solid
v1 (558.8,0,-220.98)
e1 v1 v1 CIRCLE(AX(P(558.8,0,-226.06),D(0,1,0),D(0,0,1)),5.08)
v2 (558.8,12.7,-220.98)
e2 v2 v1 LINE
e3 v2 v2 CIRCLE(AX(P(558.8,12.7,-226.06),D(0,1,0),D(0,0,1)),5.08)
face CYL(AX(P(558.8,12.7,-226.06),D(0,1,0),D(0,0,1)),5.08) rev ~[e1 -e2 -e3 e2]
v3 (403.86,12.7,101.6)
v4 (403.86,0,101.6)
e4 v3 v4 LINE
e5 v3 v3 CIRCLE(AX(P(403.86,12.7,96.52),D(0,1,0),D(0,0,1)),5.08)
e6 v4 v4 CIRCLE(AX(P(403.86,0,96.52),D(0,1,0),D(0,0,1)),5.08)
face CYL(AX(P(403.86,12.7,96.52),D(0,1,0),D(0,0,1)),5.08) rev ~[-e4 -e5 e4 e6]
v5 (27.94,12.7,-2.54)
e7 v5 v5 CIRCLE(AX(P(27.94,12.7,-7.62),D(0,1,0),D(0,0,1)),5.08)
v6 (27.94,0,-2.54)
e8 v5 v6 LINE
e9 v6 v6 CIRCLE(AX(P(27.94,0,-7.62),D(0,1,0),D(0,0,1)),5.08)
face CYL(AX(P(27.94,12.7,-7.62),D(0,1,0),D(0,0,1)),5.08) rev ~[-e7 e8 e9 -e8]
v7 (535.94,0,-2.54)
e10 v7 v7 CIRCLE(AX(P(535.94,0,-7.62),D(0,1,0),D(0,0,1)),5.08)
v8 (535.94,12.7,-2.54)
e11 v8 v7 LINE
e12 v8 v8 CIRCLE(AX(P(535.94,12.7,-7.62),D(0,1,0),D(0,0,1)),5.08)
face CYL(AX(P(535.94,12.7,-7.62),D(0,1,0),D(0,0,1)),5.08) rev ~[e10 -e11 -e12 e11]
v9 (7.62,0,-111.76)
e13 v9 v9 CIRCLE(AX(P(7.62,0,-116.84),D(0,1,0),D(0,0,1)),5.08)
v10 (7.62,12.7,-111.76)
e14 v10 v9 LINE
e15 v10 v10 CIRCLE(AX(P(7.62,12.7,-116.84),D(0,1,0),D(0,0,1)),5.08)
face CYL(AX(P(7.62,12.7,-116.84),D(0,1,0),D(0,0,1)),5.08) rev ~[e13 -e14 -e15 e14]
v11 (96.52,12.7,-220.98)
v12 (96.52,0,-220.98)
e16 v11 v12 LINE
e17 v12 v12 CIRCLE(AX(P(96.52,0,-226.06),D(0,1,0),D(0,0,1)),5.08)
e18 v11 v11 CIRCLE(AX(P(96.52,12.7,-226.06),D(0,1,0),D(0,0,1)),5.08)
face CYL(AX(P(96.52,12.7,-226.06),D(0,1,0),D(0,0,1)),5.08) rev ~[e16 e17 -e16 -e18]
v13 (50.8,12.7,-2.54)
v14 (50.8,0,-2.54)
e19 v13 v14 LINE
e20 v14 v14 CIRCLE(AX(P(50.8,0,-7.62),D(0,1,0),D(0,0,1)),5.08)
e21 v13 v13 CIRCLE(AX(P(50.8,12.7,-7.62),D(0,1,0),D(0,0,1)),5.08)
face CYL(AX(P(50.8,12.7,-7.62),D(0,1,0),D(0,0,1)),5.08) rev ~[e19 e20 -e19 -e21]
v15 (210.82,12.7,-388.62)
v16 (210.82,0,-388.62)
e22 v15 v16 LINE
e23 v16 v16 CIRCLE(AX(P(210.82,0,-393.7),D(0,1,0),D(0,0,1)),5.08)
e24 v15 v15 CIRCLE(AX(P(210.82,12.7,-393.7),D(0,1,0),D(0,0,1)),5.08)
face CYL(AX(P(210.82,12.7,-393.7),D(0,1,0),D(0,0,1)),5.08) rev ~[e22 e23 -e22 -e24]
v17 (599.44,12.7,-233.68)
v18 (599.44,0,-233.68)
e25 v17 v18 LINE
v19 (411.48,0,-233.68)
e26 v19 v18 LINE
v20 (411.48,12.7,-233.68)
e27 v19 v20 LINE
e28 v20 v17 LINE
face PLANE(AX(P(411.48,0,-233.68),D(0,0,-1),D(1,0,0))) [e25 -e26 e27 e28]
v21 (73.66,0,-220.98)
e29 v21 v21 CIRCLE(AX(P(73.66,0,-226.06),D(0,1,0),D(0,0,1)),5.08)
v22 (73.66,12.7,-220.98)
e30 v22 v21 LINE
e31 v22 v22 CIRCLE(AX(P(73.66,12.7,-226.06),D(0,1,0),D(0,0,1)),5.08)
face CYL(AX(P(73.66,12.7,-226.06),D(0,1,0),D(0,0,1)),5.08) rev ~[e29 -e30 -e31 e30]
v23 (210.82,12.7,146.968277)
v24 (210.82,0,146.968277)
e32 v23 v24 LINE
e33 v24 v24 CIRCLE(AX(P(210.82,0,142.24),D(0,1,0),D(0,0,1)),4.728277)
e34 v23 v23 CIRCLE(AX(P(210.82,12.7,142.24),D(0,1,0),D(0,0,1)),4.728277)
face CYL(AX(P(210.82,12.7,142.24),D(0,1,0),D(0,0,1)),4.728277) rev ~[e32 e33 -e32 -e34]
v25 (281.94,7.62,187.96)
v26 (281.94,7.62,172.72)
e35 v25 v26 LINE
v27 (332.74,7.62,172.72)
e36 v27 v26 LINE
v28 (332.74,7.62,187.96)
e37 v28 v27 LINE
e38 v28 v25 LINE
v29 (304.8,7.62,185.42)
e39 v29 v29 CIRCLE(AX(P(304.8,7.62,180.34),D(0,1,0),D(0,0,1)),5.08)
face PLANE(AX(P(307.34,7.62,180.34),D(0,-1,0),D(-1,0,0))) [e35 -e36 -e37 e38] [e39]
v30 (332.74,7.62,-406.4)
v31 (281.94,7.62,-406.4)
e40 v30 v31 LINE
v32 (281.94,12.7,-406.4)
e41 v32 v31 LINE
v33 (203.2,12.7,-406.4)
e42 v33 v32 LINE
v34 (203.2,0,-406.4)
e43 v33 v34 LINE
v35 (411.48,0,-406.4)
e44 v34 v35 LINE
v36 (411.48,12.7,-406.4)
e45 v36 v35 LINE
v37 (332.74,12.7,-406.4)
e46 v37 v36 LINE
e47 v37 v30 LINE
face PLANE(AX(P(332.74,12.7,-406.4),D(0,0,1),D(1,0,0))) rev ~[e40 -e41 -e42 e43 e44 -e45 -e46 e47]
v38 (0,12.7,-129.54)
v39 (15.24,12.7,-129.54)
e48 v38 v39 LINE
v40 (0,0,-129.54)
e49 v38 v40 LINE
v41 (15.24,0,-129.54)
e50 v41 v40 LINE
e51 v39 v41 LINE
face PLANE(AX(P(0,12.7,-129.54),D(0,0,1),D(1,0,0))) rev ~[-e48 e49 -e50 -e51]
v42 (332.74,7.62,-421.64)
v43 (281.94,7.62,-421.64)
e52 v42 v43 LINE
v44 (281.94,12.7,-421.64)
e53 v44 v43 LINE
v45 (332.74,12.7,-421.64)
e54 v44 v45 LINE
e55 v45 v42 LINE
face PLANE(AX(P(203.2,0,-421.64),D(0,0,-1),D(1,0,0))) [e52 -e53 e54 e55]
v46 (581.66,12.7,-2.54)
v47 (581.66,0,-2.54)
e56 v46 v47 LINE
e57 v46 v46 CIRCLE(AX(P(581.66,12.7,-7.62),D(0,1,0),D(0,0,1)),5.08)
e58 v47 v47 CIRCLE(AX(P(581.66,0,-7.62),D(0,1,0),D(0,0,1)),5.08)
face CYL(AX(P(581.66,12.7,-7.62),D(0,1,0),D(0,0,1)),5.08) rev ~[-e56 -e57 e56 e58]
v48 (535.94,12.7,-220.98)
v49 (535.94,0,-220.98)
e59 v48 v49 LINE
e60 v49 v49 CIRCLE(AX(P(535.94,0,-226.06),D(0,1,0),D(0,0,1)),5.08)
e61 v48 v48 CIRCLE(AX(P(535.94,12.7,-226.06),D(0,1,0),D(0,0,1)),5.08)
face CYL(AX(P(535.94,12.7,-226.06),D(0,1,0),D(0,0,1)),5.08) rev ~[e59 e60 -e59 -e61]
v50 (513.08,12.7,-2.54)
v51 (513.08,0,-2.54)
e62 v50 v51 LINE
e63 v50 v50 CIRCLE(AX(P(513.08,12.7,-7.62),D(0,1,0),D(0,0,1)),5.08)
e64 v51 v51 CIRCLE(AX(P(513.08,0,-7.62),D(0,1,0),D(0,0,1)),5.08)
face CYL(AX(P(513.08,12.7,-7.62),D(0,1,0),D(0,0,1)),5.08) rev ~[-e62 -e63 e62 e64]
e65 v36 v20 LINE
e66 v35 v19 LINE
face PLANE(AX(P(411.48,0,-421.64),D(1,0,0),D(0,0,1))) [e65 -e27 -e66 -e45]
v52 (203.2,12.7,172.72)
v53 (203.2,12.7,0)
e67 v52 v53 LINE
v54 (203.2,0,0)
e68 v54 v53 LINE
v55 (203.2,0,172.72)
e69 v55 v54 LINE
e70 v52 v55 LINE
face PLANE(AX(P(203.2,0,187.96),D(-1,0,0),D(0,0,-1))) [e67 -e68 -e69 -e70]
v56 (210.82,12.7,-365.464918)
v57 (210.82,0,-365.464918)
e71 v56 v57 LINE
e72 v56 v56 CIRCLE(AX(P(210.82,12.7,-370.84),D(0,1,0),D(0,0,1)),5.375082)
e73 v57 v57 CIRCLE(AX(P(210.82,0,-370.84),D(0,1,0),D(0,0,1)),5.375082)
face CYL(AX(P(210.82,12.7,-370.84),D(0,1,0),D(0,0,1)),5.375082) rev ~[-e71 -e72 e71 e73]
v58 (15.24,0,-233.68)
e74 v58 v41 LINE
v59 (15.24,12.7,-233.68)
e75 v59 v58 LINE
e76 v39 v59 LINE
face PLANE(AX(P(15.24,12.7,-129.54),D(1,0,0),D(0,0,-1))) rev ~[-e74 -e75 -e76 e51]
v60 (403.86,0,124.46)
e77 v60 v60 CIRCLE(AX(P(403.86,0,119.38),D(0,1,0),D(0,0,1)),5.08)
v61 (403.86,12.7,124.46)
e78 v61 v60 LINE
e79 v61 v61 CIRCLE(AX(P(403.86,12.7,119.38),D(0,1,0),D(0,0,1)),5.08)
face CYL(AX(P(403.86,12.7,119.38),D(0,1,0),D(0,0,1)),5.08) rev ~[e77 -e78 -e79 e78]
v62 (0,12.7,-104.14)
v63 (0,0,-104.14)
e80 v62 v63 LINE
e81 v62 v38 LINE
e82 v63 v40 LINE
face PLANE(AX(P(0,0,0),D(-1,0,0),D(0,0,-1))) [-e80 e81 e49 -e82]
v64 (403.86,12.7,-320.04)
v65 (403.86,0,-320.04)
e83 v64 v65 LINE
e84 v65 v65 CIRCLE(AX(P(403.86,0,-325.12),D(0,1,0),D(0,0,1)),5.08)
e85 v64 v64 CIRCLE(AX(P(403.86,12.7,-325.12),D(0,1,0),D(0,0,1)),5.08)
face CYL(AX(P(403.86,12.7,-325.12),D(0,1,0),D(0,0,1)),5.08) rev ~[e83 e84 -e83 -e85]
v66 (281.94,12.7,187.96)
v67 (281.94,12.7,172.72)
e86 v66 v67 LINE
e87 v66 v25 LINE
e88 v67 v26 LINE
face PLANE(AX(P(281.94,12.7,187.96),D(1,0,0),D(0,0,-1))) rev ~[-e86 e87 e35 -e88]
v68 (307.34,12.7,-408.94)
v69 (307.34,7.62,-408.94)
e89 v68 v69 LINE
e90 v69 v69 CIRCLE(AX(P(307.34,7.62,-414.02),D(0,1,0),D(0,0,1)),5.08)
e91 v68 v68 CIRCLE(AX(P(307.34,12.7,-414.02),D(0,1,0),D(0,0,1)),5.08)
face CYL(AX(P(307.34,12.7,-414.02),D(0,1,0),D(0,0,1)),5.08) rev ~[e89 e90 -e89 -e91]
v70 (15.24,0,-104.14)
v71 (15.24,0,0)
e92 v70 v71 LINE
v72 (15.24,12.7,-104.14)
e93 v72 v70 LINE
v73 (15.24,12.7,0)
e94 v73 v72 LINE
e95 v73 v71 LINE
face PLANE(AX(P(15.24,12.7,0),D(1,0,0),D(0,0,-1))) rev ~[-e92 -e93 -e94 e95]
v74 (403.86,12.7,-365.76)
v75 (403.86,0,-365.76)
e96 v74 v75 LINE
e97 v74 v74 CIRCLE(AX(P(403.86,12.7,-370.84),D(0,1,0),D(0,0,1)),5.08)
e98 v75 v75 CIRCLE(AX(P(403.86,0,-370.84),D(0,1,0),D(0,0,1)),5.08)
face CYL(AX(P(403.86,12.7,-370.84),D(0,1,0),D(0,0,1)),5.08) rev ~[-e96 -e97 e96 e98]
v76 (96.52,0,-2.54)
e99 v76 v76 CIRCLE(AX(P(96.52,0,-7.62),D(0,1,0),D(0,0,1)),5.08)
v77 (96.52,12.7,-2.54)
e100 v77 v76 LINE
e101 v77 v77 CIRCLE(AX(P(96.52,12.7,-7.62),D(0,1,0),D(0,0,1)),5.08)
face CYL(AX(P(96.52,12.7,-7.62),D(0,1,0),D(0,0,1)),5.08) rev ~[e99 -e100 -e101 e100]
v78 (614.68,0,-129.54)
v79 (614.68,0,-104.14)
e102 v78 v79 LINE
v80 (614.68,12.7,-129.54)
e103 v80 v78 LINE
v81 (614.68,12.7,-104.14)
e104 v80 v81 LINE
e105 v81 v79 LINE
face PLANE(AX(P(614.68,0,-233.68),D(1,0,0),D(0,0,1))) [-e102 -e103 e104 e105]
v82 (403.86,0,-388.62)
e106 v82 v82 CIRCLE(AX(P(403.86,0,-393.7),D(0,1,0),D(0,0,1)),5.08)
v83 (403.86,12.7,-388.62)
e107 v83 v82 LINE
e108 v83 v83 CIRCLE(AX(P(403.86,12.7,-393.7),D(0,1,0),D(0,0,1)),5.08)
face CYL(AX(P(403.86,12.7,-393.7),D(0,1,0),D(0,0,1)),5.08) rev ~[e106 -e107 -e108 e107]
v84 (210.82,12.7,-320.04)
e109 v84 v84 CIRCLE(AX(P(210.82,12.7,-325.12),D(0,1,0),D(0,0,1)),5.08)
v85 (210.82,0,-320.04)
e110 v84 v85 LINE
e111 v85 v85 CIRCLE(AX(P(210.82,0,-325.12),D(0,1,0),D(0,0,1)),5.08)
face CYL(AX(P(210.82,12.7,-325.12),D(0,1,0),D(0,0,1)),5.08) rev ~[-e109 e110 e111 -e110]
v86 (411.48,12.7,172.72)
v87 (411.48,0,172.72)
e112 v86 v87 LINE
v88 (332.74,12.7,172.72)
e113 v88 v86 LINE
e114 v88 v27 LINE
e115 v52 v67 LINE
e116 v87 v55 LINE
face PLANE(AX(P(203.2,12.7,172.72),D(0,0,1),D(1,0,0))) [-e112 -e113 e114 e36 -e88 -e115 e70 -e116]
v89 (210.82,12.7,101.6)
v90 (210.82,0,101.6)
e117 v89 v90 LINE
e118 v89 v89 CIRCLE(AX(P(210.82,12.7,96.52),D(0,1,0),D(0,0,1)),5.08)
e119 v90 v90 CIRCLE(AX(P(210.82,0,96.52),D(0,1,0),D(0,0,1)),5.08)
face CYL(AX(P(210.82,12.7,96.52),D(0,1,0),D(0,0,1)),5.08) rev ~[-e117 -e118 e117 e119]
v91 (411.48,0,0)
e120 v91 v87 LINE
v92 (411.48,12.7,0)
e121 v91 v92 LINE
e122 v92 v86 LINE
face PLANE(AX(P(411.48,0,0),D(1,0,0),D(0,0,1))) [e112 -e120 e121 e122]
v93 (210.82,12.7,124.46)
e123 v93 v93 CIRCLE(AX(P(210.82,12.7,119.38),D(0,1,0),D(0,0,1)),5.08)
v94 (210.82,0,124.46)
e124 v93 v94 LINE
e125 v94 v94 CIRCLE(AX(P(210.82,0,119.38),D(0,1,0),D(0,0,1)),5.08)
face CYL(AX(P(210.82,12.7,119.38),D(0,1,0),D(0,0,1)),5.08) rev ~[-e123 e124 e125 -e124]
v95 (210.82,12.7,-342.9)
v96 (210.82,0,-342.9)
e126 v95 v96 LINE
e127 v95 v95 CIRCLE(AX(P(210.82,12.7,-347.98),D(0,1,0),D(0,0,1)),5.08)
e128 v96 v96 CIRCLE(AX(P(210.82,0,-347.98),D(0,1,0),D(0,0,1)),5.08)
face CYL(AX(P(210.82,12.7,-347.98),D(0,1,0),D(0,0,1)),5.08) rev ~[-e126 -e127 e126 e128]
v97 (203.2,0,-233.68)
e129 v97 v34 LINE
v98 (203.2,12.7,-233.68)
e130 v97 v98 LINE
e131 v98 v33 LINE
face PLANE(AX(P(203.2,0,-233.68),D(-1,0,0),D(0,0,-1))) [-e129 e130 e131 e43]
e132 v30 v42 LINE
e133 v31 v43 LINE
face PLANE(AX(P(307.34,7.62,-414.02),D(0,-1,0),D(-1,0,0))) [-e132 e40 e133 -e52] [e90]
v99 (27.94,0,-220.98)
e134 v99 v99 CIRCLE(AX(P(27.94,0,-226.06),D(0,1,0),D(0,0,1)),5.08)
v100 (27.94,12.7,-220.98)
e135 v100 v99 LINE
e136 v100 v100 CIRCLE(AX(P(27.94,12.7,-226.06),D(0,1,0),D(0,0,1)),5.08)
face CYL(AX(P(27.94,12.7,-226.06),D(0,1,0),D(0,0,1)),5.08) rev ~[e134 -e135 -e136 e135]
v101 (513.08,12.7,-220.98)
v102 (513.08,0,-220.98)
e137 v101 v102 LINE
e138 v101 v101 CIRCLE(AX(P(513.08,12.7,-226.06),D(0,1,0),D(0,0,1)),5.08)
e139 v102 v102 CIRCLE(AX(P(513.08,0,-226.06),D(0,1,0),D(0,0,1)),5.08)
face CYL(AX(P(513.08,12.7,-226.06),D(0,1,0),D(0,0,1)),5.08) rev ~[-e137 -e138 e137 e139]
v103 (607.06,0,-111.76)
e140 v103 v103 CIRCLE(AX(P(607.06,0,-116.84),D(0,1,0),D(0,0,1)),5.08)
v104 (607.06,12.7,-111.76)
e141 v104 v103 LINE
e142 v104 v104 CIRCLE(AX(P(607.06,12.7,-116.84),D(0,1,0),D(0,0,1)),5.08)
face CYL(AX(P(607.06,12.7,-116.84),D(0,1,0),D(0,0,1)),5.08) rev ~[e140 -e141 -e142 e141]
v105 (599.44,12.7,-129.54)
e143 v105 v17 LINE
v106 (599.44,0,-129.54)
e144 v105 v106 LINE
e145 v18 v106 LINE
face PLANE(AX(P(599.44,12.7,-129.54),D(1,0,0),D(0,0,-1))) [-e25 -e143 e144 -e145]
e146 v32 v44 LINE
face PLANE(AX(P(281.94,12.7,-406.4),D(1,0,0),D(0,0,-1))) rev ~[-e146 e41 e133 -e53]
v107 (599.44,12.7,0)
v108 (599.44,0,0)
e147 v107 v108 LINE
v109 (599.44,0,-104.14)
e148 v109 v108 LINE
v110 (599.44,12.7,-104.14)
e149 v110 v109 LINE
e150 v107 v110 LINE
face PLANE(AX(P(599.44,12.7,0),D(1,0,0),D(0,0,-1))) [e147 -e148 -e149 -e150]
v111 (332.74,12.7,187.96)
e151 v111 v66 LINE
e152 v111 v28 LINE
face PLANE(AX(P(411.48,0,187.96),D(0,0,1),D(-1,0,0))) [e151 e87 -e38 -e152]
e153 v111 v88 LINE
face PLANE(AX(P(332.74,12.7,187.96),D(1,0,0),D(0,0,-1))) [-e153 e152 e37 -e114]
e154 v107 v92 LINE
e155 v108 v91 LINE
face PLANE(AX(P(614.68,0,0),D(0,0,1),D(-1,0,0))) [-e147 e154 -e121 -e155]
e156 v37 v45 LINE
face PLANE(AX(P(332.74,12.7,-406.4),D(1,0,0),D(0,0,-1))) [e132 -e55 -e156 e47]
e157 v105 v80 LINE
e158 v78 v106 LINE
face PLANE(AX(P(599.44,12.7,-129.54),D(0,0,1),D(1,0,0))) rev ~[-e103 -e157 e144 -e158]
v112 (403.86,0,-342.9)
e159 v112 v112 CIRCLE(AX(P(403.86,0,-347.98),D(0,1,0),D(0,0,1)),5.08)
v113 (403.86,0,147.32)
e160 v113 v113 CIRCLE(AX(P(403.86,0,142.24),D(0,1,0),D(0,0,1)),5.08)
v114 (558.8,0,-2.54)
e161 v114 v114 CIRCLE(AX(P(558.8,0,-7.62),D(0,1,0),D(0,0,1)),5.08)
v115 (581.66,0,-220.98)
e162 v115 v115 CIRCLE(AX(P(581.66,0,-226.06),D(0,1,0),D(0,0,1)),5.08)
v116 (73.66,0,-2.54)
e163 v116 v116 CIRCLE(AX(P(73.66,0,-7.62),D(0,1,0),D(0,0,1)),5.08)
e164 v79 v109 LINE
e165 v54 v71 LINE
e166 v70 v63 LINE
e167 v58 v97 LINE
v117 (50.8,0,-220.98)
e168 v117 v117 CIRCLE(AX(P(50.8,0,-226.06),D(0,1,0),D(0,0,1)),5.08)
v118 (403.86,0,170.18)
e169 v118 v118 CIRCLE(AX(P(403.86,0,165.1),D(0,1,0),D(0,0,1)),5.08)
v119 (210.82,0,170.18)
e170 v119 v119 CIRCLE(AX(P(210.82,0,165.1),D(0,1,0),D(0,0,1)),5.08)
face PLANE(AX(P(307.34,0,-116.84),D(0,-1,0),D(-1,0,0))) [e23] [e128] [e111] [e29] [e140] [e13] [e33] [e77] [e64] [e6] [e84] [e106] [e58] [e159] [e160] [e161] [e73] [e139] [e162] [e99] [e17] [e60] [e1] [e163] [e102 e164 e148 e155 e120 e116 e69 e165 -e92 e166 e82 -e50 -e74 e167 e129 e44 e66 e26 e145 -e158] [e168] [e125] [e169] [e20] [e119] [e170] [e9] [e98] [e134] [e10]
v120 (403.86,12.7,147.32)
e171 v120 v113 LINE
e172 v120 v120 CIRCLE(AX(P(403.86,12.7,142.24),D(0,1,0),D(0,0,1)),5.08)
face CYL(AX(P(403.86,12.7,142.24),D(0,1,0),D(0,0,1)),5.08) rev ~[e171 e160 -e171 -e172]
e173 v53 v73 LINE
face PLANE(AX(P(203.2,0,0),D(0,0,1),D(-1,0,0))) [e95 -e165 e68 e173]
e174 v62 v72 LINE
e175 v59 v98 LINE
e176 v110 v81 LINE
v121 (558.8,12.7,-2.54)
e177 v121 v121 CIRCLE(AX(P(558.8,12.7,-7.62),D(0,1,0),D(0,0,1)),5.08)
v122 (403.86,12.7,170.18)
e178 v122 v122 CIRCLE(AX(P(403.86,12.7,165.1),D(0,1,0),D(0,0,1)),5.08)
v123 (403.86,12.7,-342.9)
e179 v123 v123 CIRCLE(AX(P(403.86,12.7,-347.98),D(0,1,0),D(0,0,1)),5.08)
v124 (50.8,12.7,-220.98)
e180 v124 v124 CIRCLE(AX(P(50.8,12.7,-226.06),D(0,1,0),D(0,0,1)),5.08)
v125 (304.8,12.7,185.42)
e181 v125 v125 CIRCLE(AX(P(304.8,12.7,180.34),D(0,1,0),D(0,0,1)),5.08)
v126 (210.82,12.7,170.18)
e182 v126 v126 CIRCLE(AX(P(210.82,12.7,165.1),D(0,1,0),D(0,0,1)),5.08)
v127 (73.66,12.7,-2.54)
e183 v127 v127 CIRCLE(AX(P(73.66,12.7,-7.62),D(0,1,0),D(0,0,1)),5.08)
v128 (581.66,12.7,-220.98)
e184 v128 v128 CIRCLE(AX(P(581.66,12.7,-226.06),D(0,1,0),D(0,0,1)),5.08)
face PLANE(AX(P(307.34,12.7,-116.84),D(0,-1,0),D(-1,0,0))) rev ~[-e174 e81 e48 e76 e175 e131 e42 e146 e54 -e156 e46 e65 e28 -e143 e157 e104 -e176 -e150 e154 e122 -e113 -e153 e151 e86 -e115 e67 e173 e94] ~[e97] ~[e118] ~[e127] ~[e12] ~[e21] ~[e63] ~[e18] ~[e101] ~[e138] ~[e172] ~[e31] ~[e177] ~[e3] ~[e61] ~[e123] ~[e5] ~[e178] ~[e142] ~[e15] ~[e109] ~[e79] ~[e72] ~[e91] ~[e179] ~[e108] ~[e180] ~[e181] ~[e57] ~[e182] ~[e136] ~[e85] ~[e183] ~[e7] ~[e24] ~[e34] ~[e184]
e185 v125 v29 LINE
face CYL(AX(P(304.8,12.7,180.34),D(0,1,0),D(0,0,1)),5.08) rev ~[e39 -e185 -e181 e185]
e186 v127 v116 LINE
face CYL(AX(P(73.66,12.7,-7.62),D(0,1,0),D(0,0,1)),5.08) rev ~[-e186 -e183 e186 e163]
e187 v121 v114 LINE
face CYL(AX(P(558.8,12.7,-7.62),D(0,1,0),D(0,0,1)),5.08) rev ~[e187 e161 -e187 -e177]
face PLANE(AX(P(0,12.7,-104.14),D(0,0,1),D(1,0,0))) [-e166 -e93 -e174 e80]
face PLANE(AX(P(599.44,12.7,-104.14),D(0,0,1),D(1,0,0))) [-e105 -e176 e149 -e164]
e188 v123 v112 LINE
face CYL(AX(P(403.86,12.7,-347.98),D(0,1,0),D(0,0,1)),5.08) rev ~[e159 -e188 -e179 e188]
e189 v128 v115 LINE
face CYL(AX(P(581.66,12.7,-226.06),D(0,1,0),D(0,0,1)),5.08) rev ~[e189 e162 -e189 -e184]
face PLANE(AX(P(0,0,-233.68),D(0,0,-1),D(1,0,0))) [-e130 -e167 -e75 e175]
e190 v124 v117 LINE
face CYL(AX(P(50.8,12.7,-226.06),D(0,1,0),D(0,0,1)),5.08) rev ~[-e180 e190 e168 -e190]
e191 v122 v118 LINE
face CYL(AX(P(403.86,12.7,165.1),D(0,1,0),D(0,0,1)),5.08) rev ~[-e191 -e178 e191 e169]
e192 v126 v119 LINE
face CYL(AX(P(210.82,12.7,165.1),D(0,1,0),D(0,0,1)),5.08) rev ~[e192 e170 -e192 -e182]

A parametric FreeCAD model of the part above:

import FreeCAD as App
import Part
import Sketcher
from FreeCAD import Vector
Q = App.Units.Quantity

doc = App.newDocument("Part")
body = doc.addObject("PartDesign::Body", "Body")

# Sketch on XZ plane
sketch1 = doc.addObject("Sketcher::SketchObject", "Sketch")
body.addObject(sketch1)
sketch1.AttachmentSupport = (doc.XZ_Plane, [""])
sketch1.MapMode = "FlatFace"
sketch1.addGeometry([
    Part.LineSegment(Vector(0, -233.68, 0), Vector(0, 0, 0)),  # 0
    Part.LineSegment(Vector(0, 0, 0), Vector(203.2, 0, 0)),  # 1
    Part.LineSegment(Vector(203.2, 0, 0), Vector(203.2, 187.96, 0)),  # 2
    Part.LineSegment(Vector(203.2, 187.96, 0), Vector(411.48, 187.96, 0)),  # 3
    Part.LineSegment(Vector(411.48, 187.96, 0), Vector(411.48, 0, 0)),  # 4
    Part.LineSegment(Vector(411.48, 0, 0), Vector(614.68, 0, 0)),  # 5
    Part.LineSegment(Vector(614.68, 0, 0), Vector(614.68, -233.68, 0)),  # 6
    Part.LineSegment(Vector(614.68, -233.68, 0), Vector(411.48, -233.68, 0)),  # 7
    Part.LineSegment(Vector(411.48, -233.68, 0), Vector(411.48, -421.64, 0)),  # 8
    Part.LineSegment(Vector(411.48, -421.64, 0), Vector(203.2, -421.64, 0)),  # 9
    Part.LineSegment(Vector(203.2, -421.64, 0), Vector(203.2, -233.68, 0)),  # 10
    Part.LineSegment(Vector(203.2, -233.68, 0), Vector(0, -233.68, 0)),  # 11
], False)
sketch1.addConstraint([
    Sketcher.Constraint("Coincident", 0, 2, 1, 1),
    Sketcher.Constraint("Coincident", 1, 2, 2, 1),
    Sketcher.Constraint("Coincident", 2, 2, 3, 1),
    Sketcher.Constraint("Coincident", 3, 2, 4, 1),
    Sketcher.Constraint("Coincident", 4, 2, 5, 1),
    Sketcher.Constraint("Coincident", 5, 2, 6, 1),
    Sketcher.Constraint("Coincident", 6, 2, 7, 1),
    Sketcher.Constraint("Coincident", 7, 2, 8, 1),
    Sketcher.Constraint("Coincident", 8, 2, 9, 1),
    Sketcher.Constraint("Coincident", 9, 2, 10, 1),
    Sketcher.Constraint("Coincident", 10, 2, 11, 1),
    Sketcher.Constraint("Coincident", 11, 2, 0, 1),
    Sketcher.Constraint("Vertical", 0),
    Sketcher.Constraint("Horizontal", 1),
    Sketcher.Constraint("Vertical", 2),
    Sketcher.Constraint("Horizontal", 3),
    Sketcher.Constraint("Vertical", 4),
    Sketcher.Constraint("Horizontal", 5),
    Sketcher.Constraint("Vertical", 6),
    Sketcher.Constraint("Horizontal", 7),
    Sketcher.Constraint("Vertical", 8),
    Sketcher.Constraint("Horizontal", 9),
    Sketcher.Constraint("Vertical", 10),
    Sketcher.Constraint("Horizontal", 11),
    Sketcher.Constraint("Coincident", 0, 2, -1, 1),
    Sketcher.Constraint("PointOnObject", 4, 2, -1),
    Sketcher.Constraint("Horizontal", 7, 2, 10, 2),
    Sketcher.Constraint("Vertical", 4, 2, 7, 2),
    Sketcher.Constraint("Vertical", 2, 2, 9, 2),
    Sketcher.Constraint("Equal", 1, 5),
    Sketcher.Constraint("Equal", 4, 8),
    Sketcher.Constraint("DistanceX", 1, 1, 1, 2, Q("8 in")),
    Sketcher.Constraint("DistanceX", 3, 1, 3, 2, Q("8.2 in")),
    Sketcher.Constraint("DistanceY", 0, 1, 0, 2, Q("9.2 in")),
    Sketcher.Constraint("DistanceY", 2, 1, 2, 2, Q("7.4 in")),
])
pad1 = doc.addObject("PartDesign::Pad", "Pad")
body.addObject(pad1)
pad1.Profile = sketch1
pad1.Length = Q("0.5 in")
pad1.Reversed = True

# Sketch on XZ plane
sketch2 = doc.addObject("Sketcher::SketchObject", "Sketch001")
body.addObject(sketch2)
sketch2.AttachmentSupport = (doc.XZ_Plane, [""])
sketch2.MapMode = "FlatFace"
sketch2.AttachmentOffset = App.Placement(Vector(0, 0, -0.5 * 25.4), App.Rotation())
sketch2.addGeometry([
    Part.LineSegment(Vector(203.2, -421.64, 0), Vector(203.2, -406.4, 0)),  # 0
    Part.LineSegment(Vector(203.2, -406.4, 0), Vector(281.94, -406.4, 0)),  # 1
    Part.LineSegment(Vector(281.94, -406.4, 0), Vector(281.94, -421.64, 0)),  # 2
    Part.LineSegment(Vector(281.94, -421.64, 0), Vector(203.2, -421.64, 0)),  # 3
    Part.LineSegment(Vector(332.74, -421.64, 0), Vector(332.74, -406.4, 0)),  # 4
    Part.LineSegment(Vector(332.74, -406.4, 0), Vector(411.48, -406.4, 0)),  # 5
    Part.LineSegment(Vector(411.48, -406.4, 0), Vector(411.48, -421.64, 0)),  # 6
    Part.LineSegment(Vector(411.48, -421.64, 0), Vector(332.74, -421.64, 0)),  # 7
    Part.LineSegment(Vector(332.74, 172.72, 0), Vector(332.74, 187.96, 0)),  # 8
    Part.LineSegment(Vector(332.74, 187.96, 0), Vector(411.48, 187.96, 0)),  # 9
    Part.LineSegment(Vector(411.48, 187.96, 0), Vector(411.48, 172.72, 0)),  # 10
    Part.LineSegment(Vector(411.48, 172.72, 0), Vector(332.74, 172.72, 0)),  # 11
    Part.LineSegment(Vector(203.2, 172.72, 0), Vector(203.2, 187.96, 0)),  # 12
    Part.LineSegment(Vector(203.2, 187.96, 0), Vector(281.94, 187.96, 0)),  # 13
    Part.LineSegment(Vector(281.94, 187.96, 0), Vector(281.94, 172.72, 0)),  # 14
    Part.LineSegment(Vector(281.94, 172.72, 0), Vector(203.2, 172.72, 0)),  # 15
], False)
sketch2.addConstraint([
    Sketcher.Constraint("Coincident", 0, 2, 1, 1),
    Sketcher.Constraint("Coincident", 1, 2, 2, 1),
    Sketcher.Constraint("Coincident", 2, 2, 3, 1),
    Sketcher.Constraint("Coincident", 3, 2, 0, 1),
    Sketcher.Constraint("Coincident", 4, 2, 5, 1),
    Sketcher.Constraint("Coincident", 5, 2, 6, 1),
    Sketcher.Constraint("Coincident", 6, 2, 7, 1),
    Sketcher.Constraint("Coincident", 7, 2, 4, 1),
    Sketcher.Constraint("Coincident", 8, 2, 9, 1),
    Sketcher.Constraint("Coincident", 9, 2, 10, 1),
    Sketcher.Constraint("Coincident", 10, 2, 11, 1),
    Sketcher.Constraint("Coincident", 11, 2, 8, 1),
    Sketcher.Constraint("Coincident", 12, 2, 13, 1),
    Sketcher.Constraint("Coincident", 13, 2, 14, 1),
    Sketcher.Constraint("Coincident", 14, 2, 15, 1),
    Sketcher.Constraint("Coincident", 15, 2, 12, 1),
    Sketcher.Constraint("Vertical", 0),
    Sketcher.Constraint("Horizontal", 1),
    Sketcher.Constraint("Vertical", 2),
    Sketcher.Constraint("Horizontal", 3),
    Sketcher.Constraint("Vertical", 4),
    Sketcher.Constraint("Horizontal", 5),
    Sketcher.Constraint("Vertical", 6),
    Sketcher.Constraint("Horizontal", 7),
    Sketcher.Constraint("Vertical", 8),
    Sketcher.Constraint("Horizontal", 9),
    Sketcher.Constraint("Vertical", 10),
    Sketcher.Constraint("Horizontal", 11),
    Sketcher.Constraint("Vertical", 12),
    Sketcher.Constraint("Horizontal", 13),
    Sketcher.Constraint("Vertical", 14),
    Sketcher.Constraint("Horizontal", 15),
    Sketcher.Constraint("Horizontal", 1, 2, 4, 2),
    Sketcher.Constraint("Horizontal", 3, 2, 6, 2),
    Sketcher.Constraint("Horizontal", 9, 2, 12, 2),
    Sketcher.Constraint("Horizontal", 11, 2, 14, 2),
    Sketcher.Constraint("Vertical", 7, 2, 8, 2),
    Sketcher.Constraint("Vertical", 6, 2, 9, 2),
    Sketcher.Constraint("Vertical", 3, 2, 12, 2),
    Sketcher.Constraint("Vertical", 2, 2, 13, 2),
    Sketcher.Constraint("Equal", 3, 5),
    Sketcher.Constraint("Equal", 6, 8),
    Sketcher.Constraint("DistanceX", 1, 1, 1, 2, Q("3.1 in")),
    Sketcher.Constraint("DistanceY", 0, 1, 0, 2, Q("0.6 in")),
    Sketcher.Constraint("DistanceX", -1, 1, 0, 2, Q("8 in")),
    Sketcher.Constraint("DistanceY", 0, 2, -1, 1, Q("16 in")),
    Sketcher.Constraint("DistanceX", 1, 2, 4, 2, Q("2 in")),
    Sketcher.Constraint("DistanceY", 7, 2, 8, 2, Q("24 in")),
])
pocket1 = doc.addObject("PartDesign::Pocket", "Pocket")
body.addObject(pocket1)
pocket1.Profile = sketch2
pocket1.Length = Q("0.6 in")
pocket1.Reversed = True

# Sketch on XZ plane
sketch3 = doc.addObject("Sketcher::SketchObject", "Sketch002")
body.addObject(sketch3)
sketch3.AttachmentSupport = (doc.XZ_Plane, [""])
sketch3.MapMode = "FlatFace"
sketch3.addGeometry([
    Part.LineSegment(Vector(332.74, 172.72, 0), Vector(332.74, 187.96, 0)),  # 0
    Part.LineSegment(Vector(332.74, 187.96, 0), Vector(281.94, 187.96, 0)),  # 1
    Part.LineSegment(Vector(281.94, 187.96, 0), Vector(281.94, 172.72, 0)),  # 2
    Part.LineSegment(Vector(281.94, 172.72, 0), Vector(332.74, 172.72, 0)),  # 3
    Part.LineSegment(Vector(332.74, -421.64, 0), Vector(332.74, -406.4, 0)),  # 4
    Part.LineSegment(Vector(332.74, -406.4, 0), Vector(281.94, -406.4, 0)),  # 5
    Part.LineSegment(Vector(281.94, -406.4, 0), Vector(281.94, -421.64, 0)),  # 6
    Part.LineSegment(Vector(281.94, -421.64, 0), Vector(332.74, -421.64, 0)),  # 7
], False)
sketch3.addConstraint([
    Sketcher.Constraint("Coincident", 0, 2, 1, 1),
    Sketcher.Constraint("Coincident", 1, 2, 2, 1),
    Sketcher.Constraint("Coincident", 2, 2, 3, 1),
    Sketcher.Constraint("Coincident", 3, 2, 0, 1),
    Sketcher.Constraint("Coincident", 4, 2, 5, 1),
    Sketcher.Constraint("Coincident", 5, 2, 6, 1),
    Sketcher.Constraint("Coincident", 6, 2, 7, 1),
    Sketcher.Constraint("Coincident", 7, 2, 4, 1),
    Sketcher.Constraint("Vertical", 0),
    Sketcher.Constraint("Horizontal", 1),
    Sketcher.Constraint("Vertical", 2),
    Sketcher.Constraint("Horizontal", 3),
    Sketcher.Constraint("Vertical", 4),
    Sketcher.Constraint("Horizontal", 5),
    Sketcher.Constraint("Vertical", 6),
    Sketcher.Constraint("Horizontal", 7),
    Sketcher.Constraint("Vertical", 3, 2, 4, 2),
    Sketcher.Constraint("Vertical", 2, 2, 5, 2),
    Sketcher.Constraint("Equal", 2, 4),
    Sketcher.Constraint("DistanceX", 1, 2, 1, 1, Q("2 in")),
    Sketcher.Constraint("DistanceY", 0, 1, 0, 2, Q("0.6 in")),
    Sketcher.Constraint("DistanceY", 4, 2, -1, 1, Q("16 in")),
    Sketcher.Constraint("DistanceY", 6, 2, 1, 2, Q("24 in")),
    Sketcher.Constraint("DistanceX", -1, 1, 0, 2, Q("13.1 in")),
])
pocket2 = doc.addObject("PartDesign::Pocket", "Pocket001")
body.addObject(pocket2)
pocket2.Profile = sketch3
pocket2.Length = Q("0.3 in")

# Sketch on XZ plane
sketch4 = doc.addObject("Sketcher::SketchObject", "Sketch003")
body.addObject(sketch4)
sketch4.AttachmentSupport = (doc.XZ_Plane, [""])
sketch4.MapMode = "FlatFace"
sketch4.AttachmentOffset = App.Placement(Vector(0, 0, -0.5 * 25.4), App.Rotation())
sketch4.addGeometry([
    Part.Circle(Vector(307.34, -414.02, 0), Vector(0, 0, 1), 5.08),
    Part.Circle(Vector(304.8, 180.34, 0), Vector(0, 0, 1), 5.08),
], False)
sketch4.addConstraint([
    Sketcher.Constraint("Equal", 0, 1),
    Sketcher.Constraint("Diameter", 0, Q("0.4 in")),
    Sketcher.Constraint("DistanceX", -1, 1, 1, 3, Q("12 in")),
    Sketcher.Constraint("DistanceX", -1, 1, 0, 3, Q("12.1 in")),
    Sketcher.Constraint("DistanceY", 0, 3, -1, 1, Q("16.3 in")),
    Sketcher.Constraint("DistanceY", -1, 1, 1, 3, Q("7.1 in")),
])
pocket3 = doc.addObject("PartDesign::Pocket", "Pocket002")
body.addObject(pocket3)
pocket3.Profile = sketch4
pocket3.Length = Q("0.4 in")
pocket3.Reversed = True

# Sketch on XZ plane
sketch5 = doc.addObject("Sketcher::SketchObject", "Sketch004")
body.addObject(sketch5)
sketch5.AttachmentSupport = (doc.XZ_Plane, [""])
sketch5.MapMode = "FlatFace"
sketch5.AttachmentOffset = App.Placement(Vector(0, 0, -0.5 * 25.4), App.Rotation())
sketch5.addGeometry([
    Part.LineSegment(Vector(0, -104.14, 0), Vector(0, 0, 0)),  # 0
    Part.LineSegment(Vector(0, 0, 0), Vector(15.24, 0, 0)),  # 1
    Part.LineSegment(Vector(15.24, 0, 0), Vector(15.24, -104.14, 0)),  # 2
    Part.LineSegment(Vector(15.24, -104.14, 0), Vector(0, -104.14, 0)),  # 3
    Part.LineSegment(Vector(0, -233.68, 0), Vector(0, -129.54, 0)),  # 4
    Part.LineSegment(Vector(0, -129.54, 0), Vector(15.24, -129.54, 0)),  # 5
    Part.LineSegment(Vector(15.24, -129.54, 0), Vector(15.24, -233.68, 0)),  # 6
    Part.LineSegment(Vector(15.24, -233.68, 0), Vector(0, -233.68, 0)),  # 7
    Part.LineSegment(Vector(599.44, -104.14, 0), Vector(599.44, 0, 0)),  # 8
    Part.LineSegment(Vector(599.44, 0, 0), Vector(614.68, 0, 0)),  # 9
    Part.LineSegment(Vector(614.68, 0, 0), Vector(614.68, -104.14, 0)),  # 10
    Part.LineSegment(Vector(614.68, -104.14, 0), Vector(599.44, -104.14, 0)),  # 11
    Part.LineSegment(Vector(599.44, -233.68, 0), Vector(599.44, -129.54, 0)),  # 12
    Part.LineSegment(Vector(599.44, -129.54, 0), Vector(614.68, -129.54, 0)),  # 13
    Part.LineSegment(Vector(614.68, -129.54, 0), Vector(614.68, -233.68, 0)),  # 14
    Part.LineSegment(Vector(614.68, -233.68, 0), Vector(599.44, -233.68, 0)),  # 15
], False)
sketch5.addConstraint([
    Sketcher.Constraint("Coincident", 0, 2, 1, 1),
    Sketcher.Constraint("Coincident", 1, 2, 2, 1),
    Sketcher.Constraint("Coincident", 2, 2, 3, 1),
    Sketcher.Constraint("Coincident", 3, 2, 0, 1),
    Sketcher.Constraint("Coincident", 4, 2, 5, 1),
    Sketcher.Constraint("Coincident", 5, 2, 6, 1),
    Sketcher.Constraint("Coincident", 6, 2, 7, 1),
    Sketcher.Constraint("Coincident", 7, 2, 4, 1),
    Sketcher.Constraint("Coincident", 8, 2, 9, 1),
    Sketcher.Constraint("Coincident", 9, 2, 10, 1),
    Sketcher.Constraint("Coincident", 10, 2, 11, 1),
    Sketcher.Constraint("Coincident", 11, 2, 8, 1),
    Sketcher.Constraint("Coincident", 12, 2, 13, 1),
    Sketcher.Constraint("Coincident", 13, 2, 14, 1),
    Sketcher.Constraint("Coincident", 14, 2, 15, 1),
    Sketcher.Constraint("Coincident", 15, 2, 12, 1),
    Sketcher.Constraint("Vertical", 0),
    Sketcher.Constraint("Horizontal", 1),
    Sketcher.Constraint("Vertical", 2),
    Sketcher.Constraint("Horizontal", 3),
    Sketcher.Constraint("Vertical", 4),
    Sketcher.Constraint("Horizontal", 5),
    Sketcher.Constraint("Vertical", 6),
    Sketcher.Constraint("Horizontal", 7),
    Sketcher.Constraint("Vertical", 8),
    Sketcher.Constraint("Horizontal", 9),
    Sketcher.Constraint("Vertical", 10),
    Sketcher.Constraint("Horizontal", 11),
    Sketcher.Constraint("Vertical", 12),
    Sketcher.Constraint("Horizontal", 13),
    Sketcher.Constraint("Vertical", 14),
    Sketcher.Constraint("Horizontal", 15),
    Sketcher.Constraint("Coincident", 0, 2, -1, 1),
    Sketcher.Constraint("PointOnObject", 4, 2, -2),
    Sketcher.Constraint("PointOnObject", 8, 2, -1),
    Sketcher.Constraint("Horizontal", 3, 2, 10, 2),
    Sketcher.Constraint("Horizontal", 5, 2, 12, 2),
    Sketcher.Constraint("Horizontal", 7, 2, 14, 2),
    Sketcher.Constraint("Vertical", 2, 2, 5, 2),
    Sketcher.Constraint("Vertical", 11, 2, 12, 2),
    Sketcher.Constraint("Vertical", 10, 2, 13, 2),
    Sketcher.Constraint("Equal", 7, 9),
    Sketcher.Constraint("Equal", 2, 4),
    Sketcher.Constraint("DistanceX", 1, 1, 1, 2, Q("0.6 in")),
    Sketcher.Constraint("DistanceY", 0, 1, 0, 2, Q("4.1 in")),
    Sketcher.Constraint("DistanceY", 4, 2, 3, 2, Q("1 in")),
    Sketcher.Constraint("DistanceX", 1, 2, 8, 2, Q("23 in")),
])
pocket4 = doc.addObject("PartDesign::Pocket", "Pocket003")
body.addObject(pocket4)
pocket4.Profile = sketch5
pocket4.Length = Q("0.6 in")
pocket4.Reversed = True

# Sketch on XZ plane
sketch6 = doc.addObject("Sketcher::SketchObject", "Sketch005")
body.addObject(sketch6)
sketch6.AttachmentSupport = (doc.XZ_Plane, [""])
sketch6.MapMode = "FlatFace"
sketch6.AttachmentOffset = App.Placement(Vector(0, 0, -0.5 * 25.4), App.Rotation())
sketch6.addGeometry([
    Part.Circle(Vector(607.06, -116.84, 0), Vector(0, 0, 1), 5.08),
    Part.Circle(Vector(7.62, -116.84, 0), Vector(0, 0, 1), 5.08),
], False)
sketch6.addConstraint([
    Sketcher.Constraint("Equal", 0, 1),
    Sketcher.Constraint("Horizontal", 0, 3, 1, 3),
    Sketcher.Constraint("Diameter", 0, Q("0.4 in")),
    Sketcher.Constraint("DistanceX", -1, 1, 0, 3, Q("23.9 in")),
    Sketcher.Constraint("DistanceY", 0, 3, -1, 1, Q("4.6 in")),
    Sketcher.Constraint("DistanceX", -1, 1, 1, 3, Q("0.3 in")),
])
pocket5 = doc.addObject("PartDesign::Pocket", "Pocket004")
body.addObject(pocket5)
pocket5.Profile = sketch6
pocket5.Length = Q("0.6 in")
pocket5.Reversed = True

# Sketch on XZ plane
sketch7 = doc.addObject("Sketcher::SketchObject", "Sketch006")
body.addObject(sketch7)
sketch7.AttachmentSupport = (doc.XZ_Plane, [""])
sketch7.MapMode = "FlatFace"
sketch7.AttachmentOffset = App.Placement(Vector(0, 0, -0.5 * 25.4), App.Rotation())
sketch7.addGeometry([
    Part.Circle(Vector(27.94, -226.06, 0), Vector(0, 0, 1), 5.08),  # 0
    Part.Circle(Vector(50.8, -226.06, 0), Vector(0, 0, 1), 5.08),  # 1
    Part.Circle(Vector(73.66, -226.06, 0), Vector(0, 0, 1), 5.08),  # 2
    Part.Circle(Vector(96.52, -226.06, 0), Vector(0, 0, 1), 5.08),  # 3
    Part.Circle(Vector(581.66, -226.06, 0), Vector(0, 0, 1), 5.08),  # 4
    Part.Circle(Vector(558.8, -226.06, 0), Vector(0, 0, 1), 5.08),  # 5
    Part.Circle(Vector(535.94, -226.06, 0), Vector(0, 0, 1), 5.08),  # 6
    Part.Circle(Vector(513.08, -226.06, 0), Vector(0, 0, 1), 5.08),  # 7
    Part.Circle(Vector(27.94, -7.62, 0), Vector(0, 0, 1), 5.08),  # 8
    Part.Circle(Vector(50.8, -7.62, 0), Vector(0, 0, 1), 5.08),  # 9
    Part.Circle(Vector(73.66, -7.62, 0), Vector(0, 0, 1), 5.08),  # 10
    Part.Circle(Vector(96.52, -7.62, 0), Vector(0, 0, 1), 5.08),  # 11
    Part.Circle(Vector(581.66, -7.62, 0), Vector(0, 0, 1), 5.08),  # 12
    Part.Circle(Vector(558.8, -7.62, 0), Vector(0, 0, 1), 5.08),  # 13
    Part.Circle(Vector(535.94, -7.62, 0), Vector(0, 0, 1), 5.08),  # 14
    Part.Circle(Vector(513.08, -7.62, 0), Vector(0, 0, 1), 5.08),  # 15
    Part.Circle(Vector(210.82, -393.7, 0), Vector(0, 0, 1), 5.08),  # 16
    Part.Circle(Vector(403.86, -393.7, 0), Vector(0, 0, 1), 5.08),  # 17
    Part.Circle(Vector(210.82, -370.84, 0), Vector(0, 0, 1), 5.375082),  # 18
    Part.Circle(Vector(210.82, -347.98, 0), Vector(0, 0, 1), 5.08),  # 19
    Part.Circle(Vector(210.82, -325.12, 0), Vector(0, 0, 1), 5.08),  # 20
    Part.Circle(Vector(403.86, -370.84, 0), Vector(0, 0, 1), 5.08),  # 21
    Part.Circle(Vector(403.86, -347.98, 0), Vector(0, 0, 1), 5.08),  # 22
    Part.Circle(Vector(403.86, -325.12, 0), Vector(0, 0, 1), 5.08),  # 23
    Part.Circle(Vector(210.82, 165.1, 0), Vector(0, 0, 1), 5.08),  # 24
    Part.Circle(Vector(403.86, 165.1, 0), Vector(0, 0, 1), 5.08),  # 25
    Part.Circle(Vector(210.82, 142.24, 0), Vector(0, 0, 1), 4.728277),  # 26
    Part.Circle(Vector(210.82, 119.38, 0), Vector(0, 0, 1), 5.08),  # 27
    Part.Circle(Vector(210.82, 96.52, 0), Vector(0, 0, 1), 5.08),  # 28
    Part.Circle(Vector(403.86, 142.24, 0), Vector(0, 0, 1), 5.08),  # 29
    Part.Circle(Vector(403.86, 119.38, 0), Vector(0, 0, 1), 5.08),  # 30
    Part.Circle(Vector(403.86, 96.52, 0), Vector(0, 0, 1), 5.08),  # 31
], False)
sketch7.addConstraint([
    Sketcher.Constraint("Equal", 0, 1),
    Sketcher.Constraint("Equal", 1, 2),
    Sketcher.Constraint("Equal", 2, 3),
    Sketcher.Constraint("Equal", 3, 4),
    Sketcher.Constraint("Equal", 4, 5),
    Sketcher.Constraint("Equal", 5, 6),
    Sketcher.Constraint("Equal", 6, 7),
    Sketcher.Constraint("Equal", 7, 8),
    Sketcher.Constraint("Equal", 8, 9),
    Sketcher.Constraint("Equal", 9, 10),
    Sketcher.Constraint("Equal", 10, 11),
    Sketcher.Constraint("Equal", 11, 12),
    Sketcher.Constraint("Equal", 12, 13),
    Sketcher.Constraint("Equal", 13, 14),
    Sketcher.Constraint("Equal", 14, 15),
    Sketcher.Constraint("Equal", 15, 16),
    Sketcher.Constraint("Equal", 16, 17),
    Sketcher.Constraint("Equal", 17, 19),
    Sketcher.Constraint("Equal", 19, 20),
    Sketcher.Constraint("Equal", 20, 21),
    Sketcher.Constraint("Equal", 21, 22),
    Sketcher.Constraint("Equal", 22, 23),
    Sketcher.Constraint("Equal", 23, 24),
    Sketcher.Constraint("Equal", 24, 25),
    Sketcher.Constraint("Equal", 25, 27),
    Sketcher.Constraint("Equal", 27, 28),
    Sketcher.Constraint("Equal", 28, 29),
    Sketcher.Constraint("Equal", 29, 30),
    Sketcher.Constraint("Equal", 30, 31),
    Sketcher.Constraint("Horizontal", 0, 3, 1, 3),
    Sketcher.Constraint("Horizontal", 1, 3, 2, 3),
    Sketcher.Constraint("Horizontal", 2, 3, 3, 3),
    Sketcher.Constraint("Horizontal", 3, 3, 4, 3),
    Sketcher.Constraint("Horizontal", 4, 3, 5, 3),
    Sketcher.Constraint("Horizontal", 5, 3, 6, 3),
    Sketcher.Constraint("Horizontal", 6, 3, 7, 3),
    Sketcher.Constraint("Horizontal", 8, 3, 9, 3),
    Sketcher.Constraint("Horizontal", 9, 3, 10, 3),
    Sketcher.Constraint("Horizontal", 10, 3, 11, 3),
    Sketcher.Constraint("Horizontal", 11, 3, 12, 3),
    Sketcher.Constraint("Horizontal", 12, 3, 13, 3),
    Sketcher.Constraint("Horizontal", 13, 3, 14, 3),
    Sketcher.Constraint("Horizontal", 14, 3, 15, 3),
    Sketcher.Constraint("Horizontal", 16, 3, 17, 3),
    Sketcher.Constraint("Horizontal", 18, 3, 21, 3),
    Sketcher.Constraint("Horizontal", 19, 3, 22, 3),
    Sketcher.Constraint("Horizontal", 20, 3, 23, 3),
    Sketcher.Constraint("Horizontal", 24, 3, 25, 3),
    Sketcher.Constraint("Horizontal", 26, 3, 29, 3),
    Sketcher.Constraint("Horizontal", 27, 3, 30, 3),
    Sketcher.Constraint("Horizontal", 28, 3, 31, 3),
    Sketcher.Constraint("Vertical", 0, 3, 8, 3),
    Sketcher.Constraint("Vertical", 1, 3, 9, 3),
    Sketcher.Constraint("Vertical", 2, 3, 10, 3),
    Sketcher.Constraint("Vertical", 3, 3, 11, 3),
    Sketcher.Constraint("Vertical", 4, 3, 12, 3),
    Sketcher.Constraint("Vertical", 5, 3, 13, 3),
    Sketcher.Constraint("Vertical", 6, 3, 14, 3),
    Sketcher.Constraint("Vertical", 7, 3, 15, 3),
    Sketcher.Constraint("Vertical", 16, 3, 18, 3),
    Sketcher.Constraint("Vertical", 18, 3, 19, 3),
    Sketcher.Constraint("Vertical", 19, 3, 20, 3),
    Sketcher.Constraint("Vertical", 17, 3, 21, 3),
    Sketcher.Constraint("Vertical", 21, 3, 22, 3),
    Sketcher.Constraint("Vertical", 22, 3, 23, 3),
    Sketcher.Constraint("Vertical", 20, 3, 24, 3),
    Sketcher.Constraint("Vertical", 23, 3, 25, 3),
    Sketcher.Constraint("Vertical", 24, 3, 26, 3),
    Sketcher.Constraint("Vertical", 26, 3, 27, 3),
    Sketcher.Constraint("Vertical", 27, 3, 28, 3),
    Sketcher.Constraint("Vertical", 25, 3, 29, 3),
    Sketcher.Constraint("Vertical", 29, 3, 30, 3),
    Sketcher.Constraint("Vertical", 30, 3, 31, 3),
    Sketcher.Constraint("Diameter", 0, Q("0.4 in")),
    Sketcher.Constraint("DistanceX", -1, 1, 1, 3, Q("2 in")),
    Sketcher.Constraint("DistanceX", -1, 1, 5, 3, Q("22 in")),
    Sketcher.Constraint("DistanceX", 2, 3, 4, 3, Q("20 in")),
    Sketcher.Constraint("DistanceX", 17, 3, 4, 3, Q("7 in")),
    Sketcher.Constraint("DistanceY", 11, 3, 27, 3, Q("5 in")),
    Sketcher.Constraint("DistanceX", -1, 1, 0, 3, Q("1.1 in")),
    Sketcher.Constraint("DistanceY", 0, 3, -1, 1, Q("8.9 in")),
    Sketcher.Constraint("DistanceX", -1, 1, 2, 3, Q("2.9 in")),
    Sketcher.Constraint("DistanceX", -1, 1, 3, 3, Q("3.8 in")),
    Sketcher.Constraint("DistanceX", -1, 1, 6, 3, Q("21.1 in")),
    Sketcher.Constraint("DistanceX", -1, 1, 7, 3, Q("20.2 in")),
    Sketcher.Constraint("DistanceY", 8, 3, -1, 1, Q("0.3 in")),
    Sketcher.Constraint("DistanceX", -1, 1, 16, 3, Q("8.3 in")),
    Sketcher.Constraint("DistanceY", 16, 3, -1, 1, Q("15.5 in")),
    Sketcher.Constraint("DistanceY", 18, 3, -1, 1, Q("14.6 in")),
    Sketcher.Constraint("DistanceY", 19, 3, -1, 1, Q("13.7 in")),
    Sketcher.Constraint("DistanceY", 20, 3, -1, 1, Q("12.8 in")),
    Sketcher.Constraint("DistanceY", -1, 1, 24, 3, Q("6.5 in")),
    Sketcher.Constraint("DistanceY", -1, 1, 26, 3, Q("5.6 in")),
    Sketcher.Constraint("DistanceY", -1, 1, 28, 3, Q("3.8 in")),
    Sketcher.Constraint("Diameter", 18, 10.750164),
    Sketcher.Constraint("Diameter", 26, 9.456553),
])
pocket6 = doc.addObject("PartDesign::Pocket", "Pocket005")
body.addObject(pocket6)
pocket6.Profile = sketch7
pocket6.Length = Q("0.6 in")
pocket6.Reversed = True

doc.recompute()
